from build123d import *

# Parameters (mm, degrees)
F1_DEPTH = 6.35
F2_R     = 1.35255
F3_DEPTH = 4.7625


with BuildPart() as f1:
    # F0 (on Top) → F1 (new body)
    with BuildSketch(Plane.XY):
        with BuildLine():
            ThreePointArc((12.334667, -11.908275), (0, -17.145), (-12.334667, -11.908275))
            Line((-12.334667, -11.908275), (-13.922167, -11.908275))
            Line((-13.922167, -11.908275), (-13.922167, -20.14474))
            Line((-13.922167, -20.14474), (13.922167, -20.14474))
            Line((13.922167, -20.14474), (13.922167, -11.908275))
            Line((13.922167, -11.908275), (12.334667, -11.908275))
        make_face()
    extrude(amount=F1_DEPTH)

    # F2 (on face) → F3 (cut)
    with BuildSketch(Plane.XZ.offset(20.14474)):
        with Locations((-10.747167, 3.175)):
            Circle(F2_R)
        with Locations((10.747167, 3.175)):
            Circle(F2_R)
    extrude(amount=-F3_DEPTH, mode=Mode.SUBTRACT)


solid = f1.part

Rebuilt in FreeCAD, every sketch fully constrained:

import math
import FreeCAD as App
import Part
import Sketcher
Q = App.Units.Quantity

doc = App.newDocument("Part")
body = doc.addObject("PartDesign::Body", "Body")

sketch1 = body.newObject("Sketcher::SketchObject", "Sketch")
sketch1.AttachmentSupport = (doc.getObject("XY_Plane"), [""])
sketch1.MapMode = "FlatFace"
sketch1.addGeometry([
    Part.ArcOfCircle(Part.Circle(App.Vector(0, 0, 0), App.Vector(0, 0, 1), 17.1), math.radians(-136), math.radians(-44)),
    Part.LineSegment(App.Vector(-12.3, -11.9, 0), App.Vector(-13.9, -11.9, 0)),
    Part.LineSegment(App.Vector(-13.9, -11.9, 0), App.Vector(-13.9, -20.1, 0)),
    Part.LineSegment(App.Vector(-13.9, -20.1, 0), App.Vector(13.9, -20.1, 0)),
    Part.LineSegment(App.Vector(13.9, -20.1, 0), App.Vector(13.9, -11.9, 0)),
    Part.LineSegment(App.Vector(13.9, -11.9, 0), App.Vector(12.3, -11.9, 0)),
], False)
sketch1.addConstraint([
    Sketcher.Constraint("Coincident", 0, 1, 1, 1),
    Sketcher.Constraint("Coincident", 1, 2, 2, 1),
    Sketcher.Constraint("Coincident", 2, 2, 3, 1),
    Sketcher.Constraint("Coincident", 3, 2, 4, 1),
    Sketcher.Constraint("Coincident", 4, 2, 5, 1),
    Sketcher.Constraint("Coincident", 5, 2, 0, 2),
    Sketcher.Constraint("Horizontal", 1),
    Sketcher.Constraint("Vertical", 2),
    Sketcher.Constraint("Horizontal", 3),
    Sketcher.Constraint("Vertical", 4),
    Sketcher.Constraint("Horizontal", 5),
    Sketcher.Constraint("Coincident", 0, 3, -1, 1),
    Sketcher.Constraint("Symmetric", 1, 2, 4, 2, -2),
    Sketcher.Constraint("Radius", 0, Q("0.675 in")),
    Sketcher.Constraint("DistanceX", 1, 2, 1, 1, Q("0.0625 in")),
    Sketcher.Constraint("DistanceY", 2, 2, -1, 1, Q("0.7931 in")),
    Sketcher.Constraint("DistanceX", 3, 1, 3, 2, Q("27.844334 mm")),
])
pad1 = body.newObject("PartDesign::Pad", "Pad")
pad1.Profile = sketch1
pad1.Length = Q("0.25 in")

sketch2 = body.newObject("Sketcher::SketchObject", "Sketch001")
sketch2.AttachmentSupport = (doc.getObject("XZ_Plane"), [""])
sketch2.MapMode = "FlatFace"
sketch2.AttachmentOffset = App.Placement(App.Vector(0, 0, 0.7931 * 25.4), App.Rotation())
sketch2.addGeometry([
    Part.Circle(App.Vector(-10.7, 3.2, 0), App.Vector(0, 0, 1), 1.4),
    Part.Circle(App.Vector(10.7, 3.2, 0), App.Vector(0, 0, 1), 1.4),
], False)
sketch2.addConstraint([
    Sketcher.Constraint("Equal", 0, 1),
    Sketcher.Constraint("Symmetric", 0, 3, 1, 3, -2),
    Sketcher.Constraint("Diameter", 0, Q("0.1065 in")),
    Sketcher.Constraint("DistanceY", -1, 1, 0, 3, Q("0.125 in")),
    Sketcher.Constraint("DistanceX", 0, 3, -1, 1, Q("10.747167 mm")),
])
pocket1 = body.newObject("PartDesign::Pocket", "Pocket")
pocket1.Profile = sketch2
pocket1.Length = Q("0.1875 in")

doc.recompute()
